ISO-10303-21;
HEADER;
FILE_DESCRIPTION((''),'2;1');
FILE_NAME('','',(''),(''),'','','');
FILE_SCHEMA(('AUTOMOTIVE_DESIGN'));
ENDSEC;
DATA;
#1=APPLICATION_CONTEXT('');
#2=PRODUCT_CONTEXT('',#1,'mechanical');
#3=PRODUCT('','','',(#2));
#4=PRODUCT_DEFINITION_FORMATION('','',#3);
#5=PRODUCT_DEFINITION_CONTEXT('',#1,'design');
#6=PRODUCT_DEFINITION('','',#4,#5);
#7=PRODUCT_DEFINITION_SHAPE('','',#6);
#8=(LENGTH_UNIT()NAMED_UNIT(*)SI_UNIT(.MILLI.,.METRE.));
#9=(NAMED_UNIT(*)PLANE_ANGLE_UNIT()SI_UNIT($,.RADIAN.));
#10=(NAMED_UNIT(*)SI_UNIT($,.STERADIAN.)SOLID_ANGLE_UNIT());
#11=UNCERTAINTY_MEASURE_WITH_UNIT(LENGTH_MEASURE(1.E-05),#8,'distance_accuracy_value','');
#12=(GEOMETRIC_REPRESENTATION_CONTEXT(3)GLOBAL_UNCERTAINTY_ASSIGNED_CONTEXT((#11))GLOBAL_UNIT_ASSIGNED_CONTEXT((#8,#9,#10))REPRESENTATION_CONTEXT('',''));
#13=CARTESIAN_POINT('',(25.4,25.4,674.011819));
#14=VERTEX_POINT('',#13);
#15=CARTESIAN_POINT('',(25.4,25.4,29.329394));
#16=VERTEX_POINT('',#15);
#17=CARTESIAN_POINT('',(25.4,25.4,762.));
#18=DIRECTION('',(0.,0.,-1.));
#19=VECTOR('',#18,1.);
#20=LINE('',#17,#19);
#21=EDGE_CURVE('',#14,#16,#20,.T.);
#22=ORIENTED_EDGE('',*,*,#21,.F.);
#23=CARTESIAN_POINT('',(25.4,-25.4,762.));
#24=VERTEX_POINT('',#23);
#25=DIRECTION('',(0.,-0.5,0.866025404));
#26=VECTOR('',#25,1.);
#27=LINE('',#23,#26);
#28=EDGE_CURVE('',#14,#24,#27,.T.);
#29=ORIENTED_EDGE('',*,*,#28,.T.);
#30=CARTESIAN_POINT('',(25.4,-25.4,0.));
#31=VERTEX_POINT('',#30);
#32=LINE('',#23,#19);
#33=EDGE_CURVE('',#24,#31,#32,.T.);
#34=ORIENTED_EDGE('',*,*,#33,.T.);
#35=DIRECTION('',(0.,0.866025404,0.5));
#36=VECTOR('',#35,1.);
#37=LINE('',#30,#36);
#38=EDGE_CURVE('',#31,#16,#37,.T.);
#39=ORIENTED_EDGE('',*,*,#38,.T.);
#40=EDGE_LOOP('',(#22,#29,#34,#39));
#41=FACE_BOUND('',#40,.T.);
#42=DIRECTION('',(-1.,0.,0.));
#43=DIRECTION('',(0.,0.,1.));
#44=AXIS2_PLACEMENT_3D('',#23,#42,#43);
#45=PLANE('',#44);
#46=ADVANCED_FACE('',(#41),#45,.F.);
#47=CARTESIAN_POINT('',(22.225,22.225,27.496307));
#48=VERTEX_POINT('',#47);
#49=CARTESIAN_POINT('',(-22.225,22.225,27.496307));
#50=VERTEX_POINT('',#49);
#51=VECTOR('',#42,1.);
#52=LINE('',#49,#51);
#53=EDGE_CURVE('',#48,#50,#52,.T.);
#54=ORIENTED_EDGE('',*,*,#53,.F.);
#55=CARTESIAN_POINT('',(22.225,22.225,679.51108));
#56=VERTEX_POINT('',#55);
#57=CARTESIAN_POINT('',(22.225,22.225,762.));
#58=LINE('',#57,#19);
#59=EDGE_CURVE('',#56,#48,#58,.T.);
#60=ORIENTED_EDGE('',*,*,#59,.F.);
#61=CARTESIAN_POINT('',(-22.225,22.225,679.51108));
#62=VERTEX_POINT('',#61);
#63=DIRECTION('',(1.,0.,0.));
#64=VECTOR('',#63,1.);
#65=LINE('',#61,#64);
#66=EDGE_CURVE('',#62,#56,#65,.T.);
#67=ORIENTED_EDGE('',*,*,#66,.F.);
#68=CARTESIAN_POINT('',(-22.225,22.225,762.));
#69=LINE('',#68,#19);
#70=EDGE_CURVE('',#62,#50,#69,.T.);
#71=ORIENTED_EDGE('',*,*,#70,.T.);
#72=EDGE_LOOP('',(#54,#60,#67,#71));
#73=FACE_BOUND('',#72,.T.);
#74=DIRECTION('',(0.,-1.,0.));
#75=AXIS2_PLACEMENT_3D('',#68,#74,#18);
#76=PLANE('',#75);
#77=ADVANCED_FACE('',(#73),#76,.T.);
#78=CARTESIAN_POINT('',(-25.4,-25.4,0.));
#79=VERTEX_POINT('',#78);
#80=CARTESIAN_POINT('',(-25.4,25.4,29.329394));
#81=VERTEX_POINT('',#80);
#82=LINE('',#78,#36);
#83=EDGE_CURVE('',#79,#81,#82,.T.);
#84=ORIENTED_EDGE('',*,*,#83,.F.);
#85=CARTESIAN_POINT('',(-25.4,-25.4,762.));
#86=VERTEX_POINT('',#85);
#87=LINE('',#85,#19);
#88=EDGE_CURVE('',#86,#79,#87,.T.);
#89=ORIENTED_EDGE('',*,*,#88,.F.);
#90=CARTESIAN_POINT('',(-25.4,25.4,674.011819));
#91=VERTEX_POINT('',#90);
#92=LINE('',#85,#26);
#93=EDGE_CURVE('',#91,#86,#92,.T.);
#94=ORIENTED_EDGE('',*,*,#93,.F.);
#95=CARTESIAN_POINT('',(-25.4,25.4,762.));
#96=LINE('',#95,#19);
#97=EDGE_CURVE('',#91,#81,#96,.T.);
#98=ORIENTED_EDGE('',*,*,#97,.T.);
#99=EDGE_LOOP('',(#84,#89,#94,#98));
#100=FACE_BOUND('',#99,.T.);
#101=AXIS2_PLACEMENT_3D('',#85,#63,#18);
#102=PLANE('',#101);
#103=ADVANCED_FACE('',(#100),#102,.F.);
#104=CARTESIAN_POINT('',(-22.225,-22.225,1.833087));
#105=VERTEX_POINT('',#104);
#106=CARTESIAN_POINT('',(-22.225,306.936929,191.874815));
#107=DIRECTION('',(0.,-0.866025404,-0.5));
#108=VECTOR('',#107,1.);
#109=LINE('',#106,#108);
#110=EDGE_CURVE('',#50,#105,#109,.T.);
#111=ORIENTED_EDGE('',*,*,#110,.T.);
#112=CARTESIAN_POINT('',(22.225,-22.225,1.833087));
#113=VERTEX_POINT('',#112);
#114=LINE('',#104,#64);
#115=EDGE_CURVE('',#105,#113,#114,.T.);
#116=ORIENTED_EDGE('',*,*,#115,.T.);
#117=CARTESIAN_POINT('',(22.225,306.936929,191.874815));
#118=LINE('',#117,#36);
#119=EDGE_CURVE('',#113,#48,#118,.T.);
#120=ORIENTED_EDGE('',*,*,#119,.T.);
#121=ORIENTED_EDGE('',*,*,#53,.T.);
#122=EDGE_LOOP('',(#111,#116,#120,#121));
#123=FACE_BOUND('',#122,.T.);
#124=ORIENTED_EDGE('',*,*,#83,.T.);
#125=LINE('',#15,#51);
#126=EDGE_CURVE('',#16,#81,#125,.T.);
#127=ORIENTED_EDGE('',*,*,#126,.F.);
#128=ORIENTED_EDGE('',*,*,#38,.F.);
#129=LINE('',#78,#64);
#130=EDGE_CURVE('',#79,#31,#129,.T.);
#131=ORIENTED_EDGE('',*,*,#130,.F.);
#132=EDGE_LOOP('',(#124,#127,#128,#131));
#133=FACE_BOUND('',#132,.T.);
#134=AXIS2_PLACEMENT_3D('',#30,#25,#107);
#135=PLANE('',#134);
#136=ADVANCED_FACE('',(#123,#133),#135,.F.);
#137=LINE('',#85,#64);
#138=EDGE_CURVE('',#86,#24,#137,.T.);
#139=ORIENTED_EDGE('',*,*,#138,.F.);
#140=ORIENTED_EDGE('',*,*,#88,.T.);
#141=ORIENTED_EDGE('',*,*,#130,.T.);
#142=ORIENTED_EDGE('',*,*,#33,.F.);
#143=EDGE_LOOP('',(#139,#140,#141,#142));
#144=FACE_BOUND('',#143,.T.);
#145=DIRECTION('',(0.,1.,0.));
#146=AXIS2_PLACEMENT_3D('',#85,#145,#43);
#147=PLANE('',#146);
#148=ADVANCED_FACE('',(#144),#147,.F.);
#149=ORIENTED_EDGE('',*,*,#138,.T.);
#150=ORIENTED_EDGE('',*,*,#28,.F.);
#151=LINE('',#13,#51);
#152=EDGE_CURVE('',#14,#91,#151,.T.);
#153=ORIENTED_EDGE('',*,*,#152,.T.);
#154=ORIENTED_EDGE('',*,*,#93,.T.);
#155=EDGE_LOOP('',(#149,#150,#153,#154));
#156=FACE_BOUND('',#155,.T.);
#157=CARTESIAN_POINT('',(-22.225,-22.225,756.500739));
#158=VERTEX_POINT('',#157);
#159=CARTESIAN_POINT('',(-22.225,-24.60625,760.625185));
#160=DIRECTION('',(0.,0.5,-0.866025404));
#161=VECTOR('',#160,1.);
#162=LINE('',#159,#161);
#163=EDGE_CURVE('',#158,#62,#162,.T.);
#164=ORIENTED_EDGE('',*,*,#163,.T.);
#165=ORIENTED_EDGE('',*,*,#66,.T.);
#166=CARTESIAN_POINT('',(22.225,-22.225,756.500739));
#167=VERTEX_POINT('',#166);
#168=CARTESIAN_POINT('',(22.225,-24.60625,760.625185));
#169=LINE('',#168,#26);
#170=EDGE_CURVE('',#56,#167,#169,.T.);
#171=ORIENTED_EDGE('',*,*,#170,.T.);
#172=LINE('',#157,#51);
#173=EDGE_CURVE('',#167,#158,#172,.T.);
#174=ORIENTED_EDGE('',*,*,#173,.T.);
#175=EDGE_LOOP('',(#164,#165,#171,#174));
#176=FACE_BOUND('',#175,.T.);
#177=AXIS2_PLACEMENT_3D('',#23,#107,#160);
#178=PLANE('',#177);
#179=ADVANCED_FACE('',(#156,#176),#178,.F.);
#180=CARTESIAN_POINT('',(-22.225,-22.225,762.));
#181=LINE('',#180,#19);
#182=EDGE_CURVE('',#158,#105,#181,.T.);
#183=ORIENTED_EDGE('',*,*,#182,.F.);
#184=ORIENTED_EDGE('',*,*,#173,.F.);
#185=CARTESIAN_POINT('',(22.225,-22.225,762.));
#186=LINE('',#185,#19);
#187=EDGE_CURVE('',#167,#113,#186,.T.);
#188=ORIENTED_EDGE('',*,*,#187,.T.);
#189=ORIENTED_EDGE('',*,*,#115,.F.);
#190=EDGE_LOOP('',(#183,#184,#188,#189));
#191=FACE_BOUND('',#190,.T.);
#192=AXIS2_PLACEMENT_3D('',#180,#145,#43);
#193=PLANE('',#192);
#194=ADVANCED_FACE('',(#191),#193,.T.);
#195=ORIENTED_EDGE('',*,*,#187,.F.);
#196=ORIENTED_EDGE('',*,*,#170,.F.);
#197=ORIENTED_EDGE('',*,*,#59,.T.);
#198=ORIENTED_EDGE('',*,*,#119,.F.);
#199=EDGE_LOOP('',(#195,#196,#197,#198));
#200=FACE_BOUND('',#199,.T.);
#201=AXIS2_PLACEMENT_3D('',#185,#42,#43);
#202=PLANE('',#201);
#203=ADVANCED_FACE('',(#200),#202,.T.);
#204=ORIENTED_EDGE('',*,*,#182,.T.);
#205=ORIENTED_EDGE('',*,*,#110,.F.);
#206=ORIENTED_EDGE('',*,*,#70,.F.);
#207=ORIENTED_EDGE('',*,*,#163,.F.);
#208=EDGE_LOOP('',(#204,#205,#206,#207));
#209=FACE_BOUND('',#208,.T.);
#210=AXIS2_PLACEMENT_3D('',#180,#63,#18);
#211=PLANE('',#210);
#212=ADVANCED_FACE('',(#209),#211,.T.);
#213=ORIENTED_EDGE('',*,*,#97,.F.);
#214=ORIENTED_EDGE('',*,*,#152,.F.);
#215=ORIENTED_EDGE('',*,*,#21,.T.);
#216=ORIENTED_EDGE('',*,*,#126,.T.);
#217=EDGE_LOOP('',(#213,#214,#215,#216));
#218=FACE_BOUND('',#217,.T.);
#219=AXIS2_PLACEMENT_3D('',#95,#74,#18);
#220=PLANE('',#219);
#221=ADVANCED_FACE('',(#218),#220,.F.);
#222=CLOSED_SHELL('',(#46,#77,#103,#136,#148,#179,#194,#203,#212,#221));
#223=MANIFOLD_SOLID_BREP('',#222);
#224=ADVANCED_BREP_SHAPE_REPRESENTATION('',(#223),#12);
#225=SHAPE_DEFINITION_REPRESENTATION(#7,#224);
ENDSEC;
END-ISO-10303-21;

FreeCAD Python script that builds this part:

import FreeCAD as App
import Part
import Sketcher
Q = App.Units.Quantity

doc = App.newDocument("Part")
params = doc.addObject("Spreadsheet::Sheet", "Params")
for row, (alias, value) in enumerate([
    ("sketch1_width", "2 in"),
    ("sketch1_width2", "1.75 in"),
    ("pad1_length", "30 in"),
    ("sketch2_width", "2 in"),
    ("sketch2_length", "4 in"),
], start=1):
    params.set(f"A{row}", alias)
    params.set(f"B{row}", "=" + value)
    params.setAlias(f"B{row}", alias)

body = doc.addObject("PartDesign::Body", "Body")

# Sketch on XY plane
sketch1 = body.newObject("Sketcher::SketchObject", "Sketch")
sketch1.AttachmentSupport = (doc.getObject("XY_Plane"), [""])
sketch1.MapMode = "FlatFace"
sketch1.addGeometry([
    Part.LineSegment(App.Vector(-25.4, 25.4, 0), App.Vector(-25.4, -25.4, 0)),  # 0
    Part.LineSegment(App.Vector(-25.4, -25.4, 0), App.Vector(25.4, -25.4, 0)),  # 1
    Part.LineSegment(App.Vector(25.4, -25.4, 0), App.Vector(25.4, 25.4, 0)),  # 2
    Part.LineSegment(App.Vector(25.4, 25.4, 0), App.Vector(-25.4, 25.4, 0)),  # 3
    Part.LineSegment(App.Vector(22.225, -22.225, 0), App.Vector(-22.225, -22.225, 0)),  # 4
    Part.LineSegment(App.Vector(-22.225, -22.225, 0), App.Vector(-22.225, 22.225, 0)),  # 5
    Part.LineSegment(App.Vector(-22.225, 22.225, 0), App.Vector(22.225, 22.225, 0)),  # 6
    Part.LineSegment(App.Vector(22.225, 22.225, 0), App.Vector(22.225, -22.225, 0)),  # 7
], False)
sketch1.addConstraint([
    Sketcher.Constraint("Coincident", 0, 2, 1, 1),
    Sketcher.Constraint("Coincident", 1, 2, 2, 1),
    Sketcher.Constraint("Coincident", 2, 2, 3, 1),
    Sketcher.Constraint("Coincident", 3, 2, 0, 1),
    Sketcher.Constraint("Coincident", 4, 2, 5, 1),
    Sketcher.Constraint("Coincident", 5, 2, 6, 1),
    Sketcher.Constraint("Coincident", 6, 2, 7, 1),
    Sketcher.Constraint("Coincident", 7, 2, 4, 1),
    Sketcher.Constraint("Vertical", 0),
    Sketcher.Constraint("Horizontal", 1),
    Sketcher.Constraint("Vertical", 2),
    Sketcher.Constraint("Horizontal", 3),
    Sketcher.Constraint("Horizontal", 4),
    Sketcher.Constraint("Vertical", 5),
    Sketcher.Constraint("Horizontal", 6),
    Sketcher.Constraint("Vertical", 7),
    Sketcher.Constraint("Symmetric", 0, 2, 2, 2, -1, 1),
    Sketcher.Constraint("Symmetric", 4, 2, 6, 2, -1, 1),
    Sketcher.Constraint("Equal", 3, 0),
    Sketcher.Constraint("Equal", 6, 5),
    Sketcher.Constraint("DistanceX", 1, 1, 1, 2, Q("2 in")),
    Sketcher.Constraint("DistanceX", 4, 2, 4, 1, Q("1.75 in")),
])
sketch1.setExpression("Constraints[20]", "Params.sketch1_width")
sketch1.setExpression("Constraints[21]", "Params.sketch1_width2")
pad1 = body.newObject("PartDesign::Pad", "Pad")
pad1.Profile = sketch1
pad1.setExpression("Length", "Params.pad1_length")

# Sketch on YZ plane
sketch2 = body.newObject("Sketcher::SketchObject", "Sketch001")
sketch2.AttachmentSupport = (doc.getObject("YZ_Plane"), [""])
sketch2.MapMode = "FlatFace"
sketch2.AttachmentOffset = App.Placement(App.Vector(0, 0, -1 * 25.4), App.Rotation())
sketch2.addGeometry([
    Part.LineSegment(App.Vector(-25.4, 0, 0), App.Vector(25.4, 29.329394, 0)),  # 0
    Part.LineSegment(App.Vector(25.4, 29.329394, 0), App.Vector(25.4, 0, 0)),  # 1
    Part.LineSegment(App.Vector(25.4, 0, 0), App.Vector(-25.4, 0, 0)),  # 2
    Part.LineSegment(App.Vector(25.4, 674.011819, 0), App.Vector(-25.4, 762, 0)),  # 3
    Part.LineSegment(App.Vector(-25.4, 762, 0), App.Vector(25.4, 762, 0)),  # 4
    Part.LineSegment(App.Vector(25.4, 762, 0), App.Vector(25.4, 674.011819, 0)),  # 5
], False)
sketch2.addConstraint([
    Sketcher.Constraint("Coincident", 0, 2, 1, 1),
    Sketcher.Constraint("Coincident", 1, 2, 2, 1),
    Sketcher.Constraint("Coincident", 2, 2, 0, 1),
    Sketcher.Constraint("Coincident", 3, 2, 4, 1),
    Sketcher.Constraint("Coincident", 4, 2, 5, 1),
    Sketcher.Constraint("Coincident", 5, 2, 3, 1),
    Sketcher.Constraint("Vertical", 1),
    Sketcher.Constraint("Horizontal", 2),
    Sketcher.Constraint("Horizontal", 4),
    Sketcher.Constraint("Vertical", 5),
    Sketcher.Constraint("Symmetric", 1, 2, 2, 2, -1, 1),
    Sketcher.Constraint("Perpendicular", 0, 3),
    Sketcher.Constraint("Vertical", 2, 2, 3, 2),
    Sketcher.Constraint("Vertical", 1, 2, 4, 2),
    Sketcher.Constraint("DistanceX", 2, 2, 2, 1, Q("2 in")),
    Sketcher.Constraint("Distance", 3, Q("4 in")),
    Sketcher.Constraint("DistanceY", -1, 1, 3, 2, Q("30 in")),
])
sketch2.setExpression("Constraints[14]", "Params.sketch2_width")
sketch2.setExpression("Constraints[15]", "Params.sketch2_length")
pocket1 = body.newObject("PartDesign::Pocket", "Pocket")
pocket1.Profile = sketch2
pocket1.Type = "ThroughAll"
pocket1.Reversed = True

doc.recompute()
